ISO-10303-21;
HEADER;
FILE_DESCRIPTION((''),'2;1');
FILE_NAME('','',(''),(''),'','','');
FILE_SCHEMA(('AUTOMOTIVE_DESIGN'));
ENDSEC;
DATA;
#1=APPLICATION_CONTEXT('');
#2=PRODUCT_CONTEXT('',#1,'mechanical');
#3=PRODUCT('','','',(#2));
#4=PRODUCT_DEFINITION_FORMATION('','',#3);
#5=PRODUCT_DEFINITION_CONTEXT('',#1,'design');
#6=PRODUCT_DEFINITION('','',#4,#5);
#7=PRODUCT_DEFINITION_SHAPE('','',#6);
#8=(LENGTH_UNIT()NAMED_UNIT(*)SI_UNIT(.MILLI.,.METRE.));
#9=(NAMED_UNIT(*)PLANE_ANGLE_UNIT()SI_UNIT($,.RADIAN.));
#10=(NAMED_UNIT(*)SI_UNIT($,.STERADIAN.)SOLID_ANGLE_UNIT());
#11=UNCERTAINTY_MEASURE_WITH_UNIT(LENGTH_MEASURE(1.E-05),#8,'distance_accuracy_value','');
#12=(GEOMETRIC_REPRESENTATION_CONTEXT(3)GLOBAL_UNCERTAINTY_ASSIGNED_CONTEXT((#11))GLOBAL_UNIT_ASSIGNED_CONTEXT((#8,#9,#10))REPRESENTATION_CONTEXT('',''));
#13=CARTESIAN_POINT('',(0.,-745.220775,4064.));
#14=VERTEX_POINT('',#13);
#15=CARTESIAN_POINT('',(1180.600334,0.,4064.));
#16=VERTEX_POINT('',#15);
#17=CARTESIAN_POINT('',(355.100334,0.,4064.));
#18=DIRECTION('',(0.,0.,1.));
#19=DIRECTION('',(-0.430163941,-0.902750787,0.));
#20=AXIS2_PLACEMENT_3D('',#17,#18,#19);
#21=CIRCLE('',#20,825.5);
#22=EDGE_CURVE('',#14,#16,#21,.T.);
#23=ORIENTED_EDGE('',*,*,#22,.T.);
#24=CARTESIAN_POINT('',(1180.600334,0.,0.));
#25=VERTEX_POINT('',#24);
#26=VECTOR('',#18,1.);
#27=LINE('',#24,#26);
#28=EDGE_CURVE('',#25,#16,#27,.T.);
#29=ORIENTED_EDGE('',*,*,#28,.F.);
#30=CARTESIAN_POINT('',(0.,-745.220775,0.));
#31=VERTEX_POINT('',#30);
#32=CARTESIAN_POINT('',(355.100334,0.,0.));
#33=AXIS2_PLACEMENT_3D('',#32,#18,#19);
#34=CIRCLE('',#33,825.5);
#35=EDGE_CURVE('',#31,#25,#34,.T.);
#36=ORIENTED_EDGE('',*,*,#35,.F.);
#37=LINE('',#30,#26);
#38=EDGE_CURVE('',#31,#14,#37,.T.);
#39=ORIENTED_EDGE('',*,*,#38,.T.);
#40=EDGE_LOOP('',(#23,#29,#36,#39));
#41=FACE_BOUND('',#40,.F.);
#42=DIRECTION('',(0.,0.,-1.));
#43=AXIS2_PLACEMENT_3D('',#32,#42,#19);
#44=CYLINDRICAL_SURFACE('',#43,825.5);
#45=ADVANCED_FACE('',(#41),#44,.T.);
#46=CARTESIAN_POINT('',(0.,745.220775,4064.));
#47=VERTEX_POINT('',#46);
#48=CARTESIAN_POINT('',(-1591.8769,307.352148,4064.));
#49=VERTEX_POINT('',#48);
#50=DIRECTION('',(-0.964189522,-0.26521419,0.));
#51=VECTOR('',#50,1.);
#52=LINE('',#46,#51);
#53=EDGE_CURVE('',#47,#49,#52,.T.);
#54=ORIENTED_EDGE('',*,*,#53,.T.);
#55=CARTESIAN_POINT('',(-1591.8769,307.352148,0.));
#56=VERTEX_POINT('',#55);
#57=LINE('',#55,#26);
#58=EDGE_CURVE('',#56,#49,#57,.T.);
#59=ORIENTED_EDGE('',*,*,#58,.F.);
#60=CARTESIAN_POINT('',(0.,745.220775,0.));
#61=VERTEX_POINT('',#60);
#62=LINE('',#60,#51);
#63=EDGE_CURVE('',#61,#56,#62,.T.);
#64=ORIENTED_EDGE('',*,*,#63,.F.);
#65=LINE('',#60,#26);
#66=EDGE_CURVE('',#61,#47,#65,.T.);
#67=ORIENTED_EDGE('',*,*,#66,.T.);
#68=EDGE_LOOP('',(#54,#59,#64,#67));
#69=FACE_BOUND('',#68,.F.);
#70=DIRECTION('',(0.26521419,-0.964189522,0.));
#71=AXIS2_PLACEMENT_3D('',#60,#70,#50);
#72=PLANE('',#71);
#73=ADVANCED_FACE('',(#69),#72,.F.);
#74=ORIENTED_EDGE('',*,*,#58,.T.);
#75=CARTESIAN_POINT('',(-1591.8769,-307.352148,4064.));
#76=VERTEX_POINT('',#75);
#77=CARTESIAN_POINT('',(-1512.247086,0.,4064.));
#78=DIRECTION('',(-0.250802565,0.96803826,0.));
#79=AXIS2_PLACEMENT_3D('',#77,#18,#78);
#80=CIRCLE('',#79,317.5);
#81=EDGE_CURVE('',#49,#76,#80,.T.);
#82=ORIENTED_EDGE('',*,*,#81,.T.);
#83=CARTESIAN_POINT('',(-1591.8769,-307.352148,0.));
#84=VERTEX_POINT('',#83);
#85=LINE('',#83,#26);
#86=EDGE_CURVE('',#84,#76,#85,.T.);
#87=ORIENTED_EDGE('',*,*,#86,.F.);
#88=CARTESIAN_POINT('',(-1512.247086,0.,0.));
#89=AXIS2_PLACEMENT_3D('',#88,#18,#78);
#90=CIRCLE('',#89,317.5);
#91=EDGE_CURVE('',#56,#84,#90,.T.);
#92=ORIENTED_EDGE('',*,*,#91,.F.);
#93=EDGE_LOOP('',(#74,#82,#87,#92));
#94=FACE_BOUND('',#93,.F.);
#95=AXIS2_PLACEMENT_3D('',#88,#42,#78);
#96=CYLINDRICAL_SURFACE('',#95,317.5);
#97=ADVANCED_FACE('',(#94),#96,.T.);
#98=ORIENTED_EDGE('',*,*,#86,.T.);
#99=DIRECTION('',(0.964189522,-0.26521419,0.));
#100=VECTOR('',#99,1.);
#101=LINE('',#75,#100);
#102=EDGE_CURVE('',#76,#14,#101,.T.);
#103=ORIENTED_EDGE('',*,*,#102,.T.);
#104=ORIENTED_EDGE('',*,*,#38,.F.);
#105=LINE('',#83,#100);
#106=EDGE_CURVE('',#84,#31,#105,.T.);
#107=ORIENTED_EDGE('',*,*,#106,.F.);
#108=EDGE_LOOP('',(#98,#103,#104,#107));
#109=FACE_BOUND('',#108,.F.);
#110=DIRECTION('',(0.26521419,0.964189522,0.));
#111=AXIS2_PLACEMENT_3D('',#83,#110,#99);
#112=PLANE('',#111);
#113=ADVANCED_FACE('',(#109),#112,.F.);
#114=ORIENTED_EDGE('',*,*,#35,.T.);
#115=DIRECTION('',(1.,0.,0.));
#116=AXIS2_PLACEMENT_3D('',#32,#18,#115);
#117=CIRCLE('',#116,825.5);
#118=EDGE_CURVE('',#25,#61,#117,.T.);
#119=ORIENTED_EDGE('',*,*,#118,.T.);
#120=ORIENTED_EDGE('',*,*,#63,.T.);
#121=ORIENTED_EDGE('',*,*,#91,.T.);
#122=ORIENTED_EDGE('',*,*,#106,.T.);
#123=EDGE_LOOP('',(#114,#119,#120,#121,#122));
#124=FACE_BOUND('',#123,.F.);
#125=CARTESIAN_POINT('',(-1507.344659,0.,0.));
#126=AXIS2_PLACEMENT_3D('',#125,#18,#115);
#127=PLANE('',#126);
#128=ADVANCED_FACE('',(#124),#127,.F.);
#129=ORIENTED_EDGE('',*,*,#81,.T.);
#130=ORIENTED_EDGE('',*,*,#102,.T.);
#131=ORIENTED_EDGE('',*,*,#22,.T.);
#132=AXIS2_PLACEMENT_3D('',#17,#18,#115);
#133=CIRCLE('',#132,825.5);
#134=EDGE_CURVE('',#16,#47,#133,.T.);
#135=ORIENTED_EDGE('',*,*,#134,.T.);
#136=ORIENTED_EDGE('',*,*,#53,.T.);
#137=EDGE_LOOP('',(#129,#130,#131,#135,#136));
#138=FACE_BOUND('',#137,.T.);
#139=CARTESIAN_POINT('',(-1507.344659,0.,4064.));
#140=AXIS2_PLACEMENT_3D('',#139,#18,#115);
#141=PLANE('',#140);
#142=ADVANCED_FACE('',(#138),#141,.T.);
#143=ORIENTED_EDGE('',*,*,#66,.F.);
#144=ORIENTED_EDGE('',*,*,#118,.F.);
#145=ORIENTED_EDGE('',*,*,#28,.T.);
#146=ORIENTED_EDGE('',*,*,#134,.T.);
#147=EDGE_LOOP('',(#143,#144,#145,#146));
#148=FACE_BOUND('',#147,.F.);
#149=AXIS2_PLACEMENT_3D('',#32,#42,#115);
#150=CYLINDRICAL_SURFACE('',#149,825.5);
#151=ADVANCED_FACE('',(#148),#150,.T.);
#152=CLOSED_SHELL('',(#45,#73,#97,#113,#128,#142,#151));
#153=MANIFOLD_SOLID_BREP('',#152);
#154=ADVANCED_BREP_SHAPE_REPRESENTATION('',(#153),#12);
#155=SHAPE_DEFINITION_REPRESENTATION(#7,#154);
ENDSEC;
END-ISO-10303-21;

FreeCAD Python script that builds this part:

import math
import FreeCAD as App
import Part
import Sketcher
from FreeCAD import Vector
Q = App.Units.Quantity

doc = App.newDocument("Part")
body = doc.addObject("PartDesign::Body", "Body")

# Sketch on XY plane
sketch1 = doc.addObject("Sketcher::SketchObject", "Sketch")
body.addObject(sketch1)
sketch1.AttachmentSupport = (doc.XY_Plane, [""])
sketch1.MapMode = "FlatFace"
sketch1.addGeometry(Part.ArcOfCircle(Part.Circle(Vector(-1512, 0, 0), Vector(0, 0, 1), 318), math.radians(105), math.radians(255)), False)
sketch1.addGeometry(Part.LineSegment(Vector(-1592, -307, 0), Vector(0, -745, 0)), False)
sketch1.addGeometry(Part.ArcOfCircle(Part.Circle(Vector(355, 0, 0), Vector(0, 0, 1), 826), math.radians(-115), math.radians(0)), False)
sketch1.addGeometry(Part.ArcOfCircle(Part.Circle(Vector(355, 0, 0), Vector(0, 0, 1), 826), math.radians(0), math.radians(115)), False)
sketch1.addGeometry(Part.LineSegment(Vector(0, 745, 0), Vector(-1592, 307, 0)), False)
sketch1.addConstraint(Sketcher.Constraint("Coincident", 0, 2, 1, 1))
sketch1.addConstraint(Sketcher.Constraint("Coincident", 1, 2, 2, 1))
sketch1.addConstraint(Sketcher.Constraint("Coincident", 2, 2, 3, 1))
sketch1.addConstraint(Sketcher.Constraint("Coincident", 3, 2, 4, 1))
sketch1.addConstraint(Sketcher.Constraint("Coincident", 4, 2, 0, 1))
sketch1.addConstraint(Sketcher.Constraint("Coincident", 3, 3, 2, 3))
sketch1.addConstraint(Sketcher.Constraint("Symmetric", 0, 2, 4, 2, -1))
sketch1.addConstraint(Sketcher.Constraint("PointOnObject", 2, 3, -1))
sketch1.addConstraint(Sketcher.Constraint("PointOnObject", 1, 2, -2))
sketch1.addConstraint(Sketcher.Constraint("PointOnObject", 2, 2, -1))
sketch1.addConstraint(Sketcher.Constraint("Equal", 1, 4))
sketch1.addConstraint(Sketcher.Constraint("Radius", 0, Q("12.5 in")))
sketch1.addConstraint(Sketcher.Constraint("Radius", 2, Q("32.5 in")))
sketch1.addConstraint(Sketcher.Constraint("Distance", 1, Q("65 in")))
sketch1.addConstraint(Sketcher.Constraint("DistanceX", 4, 2, -1, 1, Q("1591.8769 mm")))
sketch1.addConstraint(Sketcher.Constraint("DistanceY", 0, 2, -1, 1, Q("307.352148 mm")))
pad1 = doc.addObject("PartDesign::Pad", "Pad")
body.addObject(pad1)
pad1.Profile = sketch1
pad1.Length = Q("160 in")

doc.recompute()
